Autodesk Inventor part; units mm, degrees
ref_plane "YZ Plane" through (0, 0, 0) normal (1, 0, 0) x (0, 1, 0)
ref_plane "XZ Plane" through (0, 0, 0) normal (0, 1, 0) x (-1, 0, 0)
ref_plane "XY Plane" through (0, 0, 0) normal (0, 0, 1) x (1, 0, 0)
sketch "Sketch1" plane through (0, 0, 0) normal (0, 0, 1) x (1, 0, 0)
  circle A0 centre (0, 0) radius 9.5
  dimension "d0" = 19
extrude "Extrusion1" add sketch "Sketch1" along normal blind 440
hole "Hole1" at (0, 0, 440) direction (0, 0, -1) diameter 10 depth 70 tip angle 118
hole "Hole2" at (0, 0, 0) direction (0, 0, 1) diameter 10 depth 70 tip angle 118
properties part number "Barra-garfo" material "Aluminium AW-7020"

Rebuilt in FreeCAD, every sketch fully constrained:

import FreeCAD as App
import Part
import Sketcher
from FreeCAD import Vector

doc = App.newDocument("Part")
body = doc.addObject("PartDesign::Body", "Body")

# Sketch on XY plane
sketch1 = doc.addObject("Sketcher::SketchObject", "Sketch")
body.addObject(sketch1)
sketch1.AttachmentSupport = (doc.XY_Plane, [""])
sketch1.MapMode = "FlatFace"
sketch1.addGeometry(Part.Circle(Vector(0, 0, 0), Vector(0, 0, 1), 9.5), False)
sketch1.addConstraint([
    Sketcher.Constraint("Coincident", 0, 3, -1, 1),
    Sketcher.Constraint("Diameter", 0, 19.0),
])
pad1 = doc.addObject("PartDesign::Pad", "Pad")
body.addObject(pad1)
pad1.Profile = sketch1
pad1.Length = 440

# Sketch on XY plane
sketch2 = doc.addObject("Sketcher::SketchObject", "Sketch001")
body.addObject(sketch2)
sketch2.AttachmentSupport = (doc.XY_Plane, [""])
sketch2.MapMode = "FlatFace"
sketch2.AttachmentOffset = App.Placement(Vector(0, 0, 440), App.Rotation())
sketch2.addGeometry(Part.Circle(Vector(0, 0, 0), Vector(0, 0, 1), 5), False)
sketch2.addConstraint([
    Sketcher.Constraint("Coincident", 0, 3, -1, 1),
    Sketcher.Constraint("Diameter", 0, 10.0),
])
doc.recompute()
hole = doc.addObject("PartDesign::Hole", "Hole")
body.addObject(hole)
hole.Profile = sketch2
hole.ThreadType = "None"
hole.Diameter = 10
hole.DepthType = "Dimension"
hole.Depth = 70
hole.DrillPoint = "Angled"
hole.DrillPointAngle = 118

# Sketch on XY plane
sketch3 = doc.addObject("Sketcher::SketchObject", "Sketch002")
body.addObject(sketch3)
sketch3.AttachmentSupport = (doc.XY_Plane, [""])
sketch3.MapMode = "FlatFace"
sketch3.addGeometry(Part.Circle(Vector(0, 0, 0), Vector(0, 0, 1), 5), False)
sketch3.addConstraint([
    Sketcher.Constraint("Coincident", 0, 3, -1, 1),
    Sketcher.Constraint("Diameter", 0, 10.0),
])
doc.recompute()
hole2 = doc.addObject("PartDesign::Hole", "Hole001")
body.addObject(hole2)
hole2.Profile = sketch3
hole2.ThreadType = "None"
hole2.Diameter = 10
hole2.DepthType = "Dimension"
hole2.Depth = 70
hole2.DrillPoint = "Angled"
hole2.DrillPointAngle = 118
hole2.Reversed = True

doc.recompute()
